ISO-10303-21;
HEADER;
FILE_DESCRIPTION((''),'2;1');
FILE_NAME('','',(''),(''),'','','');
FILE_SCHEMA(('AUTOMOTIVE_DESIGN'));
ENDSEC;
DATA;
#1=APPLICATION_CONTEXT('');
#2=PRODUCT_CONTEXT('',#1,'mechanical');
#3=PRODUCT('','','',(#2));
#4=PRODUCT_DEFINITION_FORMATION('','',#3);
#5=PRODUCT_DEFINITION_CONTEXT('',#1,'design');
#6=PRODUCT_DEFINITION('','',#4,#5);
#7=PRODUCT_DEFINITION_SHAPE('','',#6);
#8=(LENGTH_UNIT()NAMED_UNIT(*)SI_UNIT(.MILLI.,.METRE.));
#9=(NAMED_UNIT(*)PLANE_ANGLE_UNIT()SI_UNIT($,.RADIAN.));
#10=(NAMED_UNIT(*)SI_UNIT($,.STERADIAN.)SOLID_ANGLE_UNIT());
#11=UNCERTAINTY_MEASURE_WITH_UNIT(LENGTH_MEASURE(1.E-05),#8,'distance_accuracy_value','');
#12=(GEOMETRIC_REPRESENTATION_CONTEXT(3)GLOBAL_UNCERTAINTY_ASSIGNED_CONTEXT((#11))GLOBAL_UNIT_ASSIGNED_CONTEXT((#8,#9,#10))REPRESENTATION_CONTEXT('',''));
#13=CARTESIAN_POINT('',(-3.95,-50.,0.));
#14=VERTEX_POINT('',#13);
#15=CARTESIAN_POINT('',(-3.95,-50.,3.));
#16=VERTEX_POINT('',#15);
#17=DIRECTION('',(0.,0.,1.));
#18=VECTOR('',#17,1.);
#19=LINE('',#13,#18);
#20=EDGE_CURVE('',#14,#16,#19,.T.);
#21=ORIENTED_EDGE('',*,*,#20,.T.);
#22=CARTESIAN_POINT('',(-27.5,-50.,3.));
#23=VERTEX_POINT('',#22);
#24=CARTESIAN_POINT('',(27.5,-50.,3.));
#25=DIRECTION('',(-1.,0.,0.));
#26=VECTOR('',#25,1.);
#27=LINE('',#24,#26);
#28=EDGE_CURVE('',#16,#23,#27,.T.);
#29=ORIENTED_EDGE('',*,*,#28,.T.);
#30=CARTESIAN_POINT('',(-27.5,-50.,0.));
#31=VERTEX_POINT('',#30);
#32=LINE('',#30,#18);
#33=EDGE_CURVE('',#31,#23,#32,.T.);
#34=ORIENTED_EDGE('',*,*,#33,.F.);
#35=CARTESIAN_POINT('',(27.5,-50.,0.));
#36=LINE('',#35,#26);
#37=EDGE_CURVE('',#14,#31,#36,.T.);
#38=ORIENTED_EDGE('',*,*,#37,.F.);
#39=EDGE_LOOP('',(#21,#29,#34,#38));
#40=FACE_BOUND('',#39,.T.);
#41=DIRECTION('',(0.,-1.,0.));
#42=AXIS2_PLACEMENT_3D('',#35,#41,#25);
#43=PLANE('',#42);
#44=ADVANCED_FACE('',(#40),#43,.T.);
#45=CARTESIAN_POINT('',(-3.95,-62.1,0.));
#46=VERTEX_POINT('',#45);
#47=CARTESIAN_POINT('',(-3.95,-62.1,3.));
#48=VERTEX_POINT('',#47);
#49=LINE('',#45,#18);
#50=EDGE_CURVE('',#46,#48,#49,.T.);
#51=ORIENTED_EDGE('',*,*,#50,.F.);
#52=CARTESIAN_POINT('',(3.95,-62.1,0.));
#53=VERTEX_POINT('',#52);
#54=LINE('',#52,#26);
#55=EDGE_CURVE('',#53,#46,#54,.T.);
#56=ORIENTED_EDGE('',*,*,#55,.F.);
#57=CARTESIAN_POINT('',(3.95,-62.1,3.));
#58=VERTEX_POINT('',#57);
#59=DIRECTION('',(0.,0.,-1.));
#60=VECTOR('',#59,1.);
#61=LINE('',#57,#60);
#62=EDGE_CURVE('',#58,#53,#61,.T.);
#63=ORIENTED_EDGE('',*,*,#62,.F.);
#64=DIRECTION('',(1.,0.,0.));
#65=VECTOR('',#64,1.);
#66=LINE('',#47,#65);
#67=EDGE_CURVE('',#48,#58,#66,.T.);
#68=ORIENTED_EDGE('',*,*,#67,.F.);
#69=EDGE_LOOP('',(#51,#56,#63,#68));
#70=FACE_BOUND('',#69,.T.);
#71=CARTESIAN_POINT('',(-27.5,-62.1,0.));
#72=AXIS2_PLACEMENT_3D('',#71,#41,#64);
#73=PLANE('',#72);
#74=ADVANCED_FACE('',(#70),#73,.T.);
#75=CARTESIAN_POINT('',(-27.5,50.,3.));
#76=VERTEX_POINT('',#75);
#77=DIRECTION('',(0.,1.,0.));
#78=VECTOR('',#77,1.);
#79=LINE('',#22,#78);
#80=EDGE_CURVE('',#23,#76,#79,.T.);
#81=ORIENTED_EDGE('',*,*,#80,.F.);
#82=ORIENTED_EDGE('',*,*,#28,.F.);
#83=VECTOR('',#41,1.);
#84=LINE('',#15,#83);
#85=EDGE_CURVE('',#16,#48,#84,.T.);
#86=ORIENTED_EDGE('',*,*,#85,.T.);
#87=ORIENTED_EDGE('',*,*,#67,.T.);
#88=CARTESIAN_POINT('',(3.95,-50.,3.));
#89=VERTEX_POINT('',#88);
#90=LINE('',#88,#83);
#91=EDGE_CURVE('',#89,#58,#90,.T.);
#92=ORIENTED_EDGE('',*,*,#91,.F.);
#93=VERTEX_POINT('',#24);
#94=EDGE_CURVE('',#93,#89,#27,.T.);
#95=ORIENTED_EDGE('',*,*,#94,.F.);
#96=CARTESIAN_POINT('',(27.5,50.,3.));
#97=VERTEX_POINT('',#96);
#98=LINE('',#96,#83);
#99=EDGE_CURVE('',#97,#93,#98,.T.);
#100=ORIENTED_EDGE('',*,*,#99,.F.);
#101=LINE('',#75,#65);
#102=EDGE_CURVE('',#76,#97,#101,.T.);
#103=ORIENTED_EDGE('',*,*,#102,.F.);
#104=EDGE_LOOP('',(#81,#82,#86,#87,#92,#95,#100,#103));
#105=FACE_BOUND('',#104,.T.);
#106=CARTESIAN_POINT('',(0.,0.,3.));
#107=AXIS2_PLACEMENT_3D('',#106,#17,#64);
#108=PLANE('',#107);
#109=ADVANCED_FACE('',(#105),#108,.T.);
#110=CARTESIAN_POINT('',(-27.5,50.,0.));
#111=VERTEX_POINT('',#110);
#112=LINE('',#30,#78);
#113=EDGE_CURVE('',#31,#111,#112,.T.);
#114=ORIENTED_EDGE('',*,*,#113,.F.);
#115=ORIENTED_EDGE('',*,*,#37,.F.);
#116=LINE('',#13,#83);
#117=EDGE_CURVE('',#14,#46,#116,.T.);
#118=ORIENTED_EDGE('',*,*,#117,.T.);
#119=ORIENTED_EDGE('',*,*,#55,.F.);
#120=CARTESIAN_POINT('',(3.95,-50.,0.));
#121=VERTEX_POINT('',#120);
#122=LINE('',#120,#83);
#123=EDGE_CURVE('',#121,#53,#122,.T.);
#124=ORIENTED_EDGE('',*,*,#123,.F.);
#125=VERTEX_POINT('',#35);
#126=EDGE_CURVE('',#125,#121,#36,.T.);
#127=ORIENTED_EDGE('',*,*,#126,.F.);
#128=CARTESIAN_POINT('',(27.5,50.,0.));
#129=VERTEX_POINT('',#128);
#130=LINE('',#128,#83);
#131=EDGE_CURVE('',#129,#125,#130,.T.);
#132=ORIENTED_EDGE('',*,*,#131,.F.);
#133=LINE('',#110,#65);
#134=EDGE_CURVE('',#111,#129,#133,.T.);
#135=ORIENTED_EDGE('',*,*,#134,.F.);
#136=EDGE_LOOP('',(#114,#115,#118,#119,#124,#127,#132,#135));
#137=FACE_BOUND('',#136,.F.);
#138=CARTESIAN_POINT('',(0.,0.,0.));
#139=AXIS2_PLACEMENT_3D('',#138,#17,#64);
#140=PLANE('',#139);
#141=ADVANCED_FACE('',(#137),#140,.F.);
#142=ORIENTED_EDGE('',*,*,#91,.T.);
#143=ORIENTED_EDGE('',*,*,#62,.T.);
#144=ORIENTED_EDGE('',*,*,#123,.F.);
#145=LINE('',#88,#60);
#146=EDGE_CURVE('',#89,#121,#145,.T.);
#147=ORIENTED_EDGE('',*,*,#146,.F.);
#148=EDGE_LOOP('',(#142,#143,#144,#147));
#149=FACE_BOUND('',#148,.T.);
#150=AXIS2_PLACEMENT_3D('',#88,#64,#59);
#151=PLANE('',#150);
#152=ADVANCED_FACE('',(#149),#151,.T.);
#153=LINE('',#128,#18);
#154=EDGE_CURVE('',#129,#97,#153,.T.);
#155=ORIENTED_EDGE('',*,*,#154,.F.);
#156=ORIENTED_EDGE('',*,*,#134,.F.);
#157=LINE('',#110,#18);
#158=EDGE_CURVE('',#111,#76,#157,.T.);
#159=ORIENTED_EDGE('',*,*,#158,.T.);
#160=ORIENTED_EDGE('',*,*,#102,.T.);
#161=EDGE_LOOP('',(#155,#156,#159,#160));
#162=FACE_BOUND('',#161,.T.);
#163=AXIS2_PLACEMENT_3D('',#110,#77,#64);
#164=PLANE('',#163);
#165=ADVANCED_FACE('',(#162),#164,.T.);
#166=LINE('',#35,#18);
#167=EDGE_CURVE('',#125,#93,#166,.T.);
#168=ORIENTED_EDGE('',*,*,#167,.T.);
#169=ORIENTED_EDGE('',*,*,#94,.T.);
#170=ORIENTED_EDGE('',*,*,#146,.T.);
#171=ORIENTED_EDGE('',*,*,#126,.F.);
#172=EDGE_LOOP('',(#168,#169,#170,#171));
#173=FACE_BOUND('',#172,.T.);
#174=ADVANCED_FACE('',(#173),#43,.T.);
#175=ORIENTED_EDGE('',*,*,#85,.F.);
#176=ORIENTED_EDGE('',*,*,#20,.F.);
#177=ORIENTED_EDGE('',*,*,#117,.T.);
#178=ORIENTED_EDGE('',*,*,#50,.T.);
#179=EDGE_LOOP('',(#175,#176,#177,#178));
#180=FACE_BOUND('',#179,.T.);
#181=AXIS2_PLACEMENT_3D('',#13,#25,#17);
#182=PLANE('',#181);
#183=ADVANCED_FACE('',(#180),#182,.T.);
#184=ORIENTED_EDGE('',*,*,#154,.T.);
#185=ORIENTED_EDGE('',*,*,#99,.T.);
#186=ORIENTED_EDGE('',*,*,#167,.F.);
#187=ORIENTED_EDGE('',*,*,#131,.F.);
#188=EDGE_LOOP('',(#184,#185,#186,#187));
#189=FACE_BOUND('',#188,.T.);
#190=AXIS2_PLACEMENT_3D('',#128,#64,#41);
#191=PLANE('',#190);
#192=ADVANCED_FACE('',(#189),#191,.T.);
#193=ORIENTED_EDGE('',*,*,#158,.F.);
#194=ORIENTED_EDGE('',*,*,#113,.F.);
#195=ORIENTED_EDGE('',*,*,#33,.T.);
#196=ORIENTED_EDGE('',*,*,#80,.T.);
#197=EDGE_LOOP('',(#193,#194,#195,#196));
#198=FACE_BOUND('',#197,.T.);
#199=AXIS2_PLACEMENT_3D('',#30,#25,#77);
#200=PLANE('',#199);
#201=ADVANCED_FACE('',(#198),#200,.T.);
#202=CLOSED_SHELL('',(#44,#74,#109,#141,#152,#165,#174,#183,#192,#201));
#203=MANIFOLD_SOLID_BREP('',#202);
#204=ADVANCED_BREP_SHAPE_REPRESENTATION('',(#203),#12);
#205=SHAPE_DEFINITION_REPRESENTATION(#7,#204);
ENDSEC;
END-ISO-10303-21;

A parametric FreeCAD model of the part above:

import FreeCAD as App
import Part
import Sketcher
from FreeCAD import Vector


def add_polygon(sketch, points):
    """Adds a closed chain of lines whose ends are joined by coincident constraints."""
    first, n = sketch.GeometryCount, len(points)
    for a, b in zip(points, points[1:] + points[:1]):
        sketch.addGeometry(Part.LineSegment(App.Vector(*a, 0), App.Vector(*b, 0)), False)
    for i in range(n):
        sketch.addConstraint(Sketcher.Constraint("Coincident", first + i, 2, first + (i + 1) % n, 1))

doc = App.newDocument("Part")
body = doc.addObject("PartDesign::Body", "Body")

sketch1 = body.newObject("Sketcher::SketchObject", "Sketch")
sketch1.AttachmentSupport = (doc.getObject("XY_Plane"), [""])
sketch1.MapMode = "FlatFace"
add_polygon(sketch1, [(28, 50), (-28, 50), (-28, -50), (28, -50)])
sketch1.addConstraint([
    Sketcher.Constraint("Horizontal", 0),
    Sketcher.Constraint("Vertical", 1),
    Sketcher.Constraint("Horizontal", 2),
    Sketcher.Constraint("Vertical", 3),
    Sketcher.Constraint("Symmetric", 0, 2, 2, 2, -1, 1),
    Sketcher.Constraint("DistanceX", 0, 2, 0, 1, 55.0),
    Sketcher.Constraint("DistanceY", 1, 2, 1, 1, 100.0),
])
pad1 = body.newObject("PartDesign::Pad", "Pad")
pad1.Profile = sketch1
pad1.Length = 3

sketch2 = body.newObject("Sketcher::SketchObject", "Sketch001")
sketch2.AttachmentSupport = (doc.getObject("XZ_Plane"), [""])
sketch2.MapMode = "FlatFace"
sketch2.AttachmentOffset = App.Placement(Vector(0, 0, 50), App.Rotation())
add_polygon(sketch2, [(-4, 0), (4, 0), (4, 3), (-4, 3)])
sketch2.addConstraint([
    Sketcher.Constraint("Horizontal", 0),
    Sketcher.Constraint("Vertical", 1),
    Sketcher.Constraint("Horizontal", 2),
    Sketcher.Constraint("Vertical", 3),
    Sketcher.Constraint("Symmetric", 0, 2, 3, 2, -1, 1),
    Sketcher.Constraint("DistanceX", 0, 1, 0, 2, 7.9),
    Sketcher.Constraint("DistanceY", 1, 1, 1, 2, 3.0),
])
pad2 = body.newObject("PartDesign::Pad", "Pad001")
pad2.Profile = sketch2
pad2.Length = 12.1

doc.recompute()
